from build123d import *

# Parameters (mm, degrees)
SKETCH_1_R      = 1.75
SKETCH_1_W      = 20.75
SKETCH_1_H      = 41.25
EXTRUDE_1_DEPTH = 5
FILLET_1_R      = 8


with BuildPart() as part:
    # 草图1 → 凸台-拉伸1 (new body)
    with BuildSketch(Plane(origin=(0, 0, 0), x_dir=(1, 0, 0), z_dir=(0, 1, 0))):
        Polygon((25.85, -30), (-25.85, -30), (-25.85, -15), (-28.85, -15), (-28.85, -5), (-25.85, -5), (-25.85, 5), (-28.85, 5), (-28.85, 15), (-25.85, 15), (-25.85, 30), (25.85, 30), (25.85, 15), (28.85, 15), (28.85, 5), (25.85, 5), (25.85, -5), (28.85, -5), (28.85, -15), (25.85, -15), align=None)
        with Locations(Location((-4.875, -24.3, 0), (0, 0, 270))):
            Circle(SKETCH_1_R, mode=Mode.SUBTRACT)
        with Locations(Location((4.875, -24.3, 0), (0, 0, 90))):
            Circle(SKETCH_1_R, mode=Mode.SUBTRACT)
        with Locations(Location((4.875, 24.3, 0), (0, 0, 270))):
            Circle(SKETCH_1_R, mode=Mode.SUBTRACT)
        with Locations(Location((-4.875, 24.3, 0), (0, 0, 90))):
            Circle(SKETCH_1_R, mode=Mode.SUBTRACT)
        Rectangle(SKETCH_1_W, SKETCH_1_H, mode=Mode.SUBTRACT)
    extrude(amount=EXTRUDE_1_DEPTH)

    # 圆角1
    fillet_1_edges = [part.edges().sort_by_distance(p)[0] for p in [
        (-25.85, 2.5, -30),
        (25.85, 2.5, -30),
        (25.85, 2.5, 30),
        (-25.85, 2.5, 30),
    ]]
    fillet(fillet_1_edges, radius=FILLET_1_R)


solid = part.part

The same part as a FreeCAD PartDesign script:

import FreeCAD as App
import Part
import Sketcher


def edges_at(feature, points):
    """Names of the edges that pass closest to the given points."""
    edges = feature.Shape.Edges
    near = lambda p: min(range(len(edges)), key=lambda i: edges[i].distToShape(Part.Vertex(*p))[0])
    return sorted({f"Edge{near(p) + 1}" for p in points})


def add_polygon(sketch, points):
    """Adds a closed chain of lines whose ends are joined by coincident constraints."""
    first, n = sketch.GeometryCount, len(points)
    for a, b in zip(points, points[1:] + points[:1]):
        sketch.addGeometry(Part.LineSegment(App.Vector(*a, 0), App.Vector(*b, 0)), False)
    for i in range(n):
        sketch.addConstraint(Sketcher.Constraint("Coincident", first + i, 2, first + (i + 1) % n, 1))

doc = App.newDocument("Part")
body = doc.addObject("PartDesign::Body", "Body")

# Sketch on XZ plane
sketch1 = doc.addObject("Sketcher::SketchObject", "Sketch")
body.addObject(sketch1)
sketch1.AttachmentSupport = (doc.XZ_Plane, [""])
sketch1.MapMode = "FlatFace"
add_polygon(sketch1, [(-25.9, 30), (25.9, 30), (25.9, 15), (28.9, 15), (28.9, 5), (25.9, 5), (25.9, -5), (28.9, -5), (28.9, -15), (25.9, -15), (25.9, -30), (-25.9, -30), (-25.9, -15), (-28.9, -15), (-28.9, -5), (-25.9, -5), (-25.9, 5), (-28.9, 5), (-28.9, 15), (-25.9, 15)])  # lines 0-19
sketch1.addGeometry(Part.Circle(App.Vector(4.9, 24.3, 0), App.Vector(0, 0, 1), 1.8), False)  # 20
sketch1.addGeometry(Part.Circle(App.Vector(-4.9, 24.3, 0), App.Vector(0, 0, 1), 1.8), False)  # 21
sketch1.addGeometry(Part.Circle(App.Vector(4.9, -24.3, 0), App.Vector(0, 0, 1), 1.8), False)  # 22
add_polygon(sketch1, [(-10.4, 20.6), (-10.4, -20.6), (10.4, -20.6), (10.4, 20.6)])  # lines 23-26
sketch1.addGeometry(Part.Circle(App.Vector(-4.9, -24.3, 0), App.Vector(0, 0, 1), 1.8), False)  # 27
sketch1.addConstraint(Sketcher.Constraint("Horizontal", 0))
sketch1.addConstraint(Sketcher.Constraint("Vertical", 1))
sketch1.addConstraint(Sketcher.Constraint("Horizontal", 2))
sketch1.addConstraint(Sketcher.Constraint("Vertical", 3))
sketch1.addConstraint(Sketcher.Constraint("Horizontal", 4))
sketch1.addConstraint(Sketcher.Constraint("Vertical", 5))
sketch1.addConstraint(Sketcher.Constraint("Horizontal", 6))
sketch1.addConstraint(Sketcher.Constraint("Vertical", 7))
sketch1.addConstraint(Sketcher.Constraint("Horizontal", 8))
sketch1.addConstraint(Sketcher.Constraint("Vertical", 9))
sketch1.addConstraint(Sketcher.Constraint("Horizontal", 10))
sketch1.addConstraint(Sketcher.Constraint("Vertical", 11))
sketch1.addConstraint(Sketcher.Constraint("Horizontal", 12))
sketch1.addConstraint(Sketcher.Constraint("Vertical", 13))
sketch1.addConstraint(Sketcher.Constraint("Horizontal", 14))
sketch1.addConstraint(Sketcher.Constraint("Vertical", 15))
sketch1.addConstraint(Sketcher.Constraint("Horizontal", 16))
sketch1.addConstraint(Sketcher.Constraint("Vertical", 17))
sketch1.addConstraint(Sketcher.Constraint("Horizontal", 18))
sketch1.addConstraint(Sketcher.Constraint("Vertical", 19))
sketch1.addConstraint(Sketcher.Constraint("Vertical", 23))
sketch1.addConstraint(Sketcher.Constraint("Horizontal", 24))
sketch1.addConstraint(Sketcher.Constraint("Vertical", 25))
sketch1.addConstraint(Sketcher.Constraint("Horizontal", 26))
sketch1.addConstraint(Sketcher.Constraint("Equal", 20, 21))
sketch1.addConstraint(Sketcher.Constraint("Equal", 21, 22))
sketch1.addConstraint(Sketcher.Constraint("Equal", 22, 27))
sketch1.addConstraint(Sketcher.Constraint("Symmetric", 21, 3, 22, 3, -1, 1))
sketch1.addConstraint(Sketcher.Constraint("Symmetric", 20, 3, 27, 3, -1, 1))
sketch1.addConstraint(Sketcher.Constraint("Symmetric", 0, 2, 10, 2, -1, 1))
sketch1.addConstraint(Sketcher.Constraint("Symmetric", 2, 2, 12, 2, -1, 1))
sketch1.addConstraint(Sketcher.Constraint("Symmetric", 4, 2, 14, 2, -1, 1))
sketch1.addConstraint(Sketcher.Constraint("Symmetric", 6, 2, 16, 2, -1, 1))
sketch1.addConstraint(Sketcher.Constraint("Symmetric", 8, 2, 18, 2, -1, 1))
sketch1.addConstraint(Sketcher.Constraint("Symmetric", 23, 2, 25, 2, -1, 1))
sketch1.addConstraint(Sketcher.Constraint("Symmetric", 20, 3, 21, 3, -2))
sketch1.addConstraint(Sketcher.Constraint("Symmetric", 8, 2, 11, 2, -2))
sketch1.addConstraint(Sketcher.Constraint("Symmetric", 6, 2, 13, 2, -2))
sketch1.addConstraint(Sketcher.Constraint("Vertical", 1, 2, 4, 2))
sketch1.addConstraint(Sketcher.Constraint("Equal", 3, 5))
sketch1.addConstraint(Sketcher.Constraint("Diameter", 20, 3.5))
sketch1.addConstraint(Sketcher.Constraint("DistanceX", 2, 1, 2, 2, 3.0))
sketch1.addConstraint(Sketcher.Constraint("DistanceY", 1, 2, 1, 1, 15.0))
sketch1.addConstraint(Sketcher.Constraint("DistanceY", 3, 2, 3, 1, 10.0))
sketch1.addConstraint(Sketcher.Constraint("DistanceX", 0, 1, 0, 2, 51.7))
sketch1.addConstraint(Sketcher.Constraint("DistanceX", 24, 1, 24, 2, 20.75))
sketch1.addConstraint(Sketcher.Constraint("DistanceY", 23, 2, 23, 1, 41.25))
sketch1.addConstraint(Sketcher.Constraint("DistanceY", -1, 1, 20, 3, 24.3))
sketch1.addConstraint(Sketcher.Constraint("DistanceX", 23, 2, 27, 3, 5.5))
pad1 = doc.addObject("PartDesign::Pad", "Pad")
body.addObject(pad1)
pad1.Profile = sketch1
pad1.Length = 5
pad1.Reversed = True
doc.recompute()

fillet = doc.addObject("PartDesign::Fillet", "Fillet")
body.addObject(fillet)
fillet.Base = (pad1, edges_at(pad1, [
    (-25.85, 2.5, -30),
    (25.85, 2.5, -30),
    (25.85, 2.5, 30),
    (-25.85, 2.5, 30),
]))
fillet.Radius = 8

doc.recompute()
